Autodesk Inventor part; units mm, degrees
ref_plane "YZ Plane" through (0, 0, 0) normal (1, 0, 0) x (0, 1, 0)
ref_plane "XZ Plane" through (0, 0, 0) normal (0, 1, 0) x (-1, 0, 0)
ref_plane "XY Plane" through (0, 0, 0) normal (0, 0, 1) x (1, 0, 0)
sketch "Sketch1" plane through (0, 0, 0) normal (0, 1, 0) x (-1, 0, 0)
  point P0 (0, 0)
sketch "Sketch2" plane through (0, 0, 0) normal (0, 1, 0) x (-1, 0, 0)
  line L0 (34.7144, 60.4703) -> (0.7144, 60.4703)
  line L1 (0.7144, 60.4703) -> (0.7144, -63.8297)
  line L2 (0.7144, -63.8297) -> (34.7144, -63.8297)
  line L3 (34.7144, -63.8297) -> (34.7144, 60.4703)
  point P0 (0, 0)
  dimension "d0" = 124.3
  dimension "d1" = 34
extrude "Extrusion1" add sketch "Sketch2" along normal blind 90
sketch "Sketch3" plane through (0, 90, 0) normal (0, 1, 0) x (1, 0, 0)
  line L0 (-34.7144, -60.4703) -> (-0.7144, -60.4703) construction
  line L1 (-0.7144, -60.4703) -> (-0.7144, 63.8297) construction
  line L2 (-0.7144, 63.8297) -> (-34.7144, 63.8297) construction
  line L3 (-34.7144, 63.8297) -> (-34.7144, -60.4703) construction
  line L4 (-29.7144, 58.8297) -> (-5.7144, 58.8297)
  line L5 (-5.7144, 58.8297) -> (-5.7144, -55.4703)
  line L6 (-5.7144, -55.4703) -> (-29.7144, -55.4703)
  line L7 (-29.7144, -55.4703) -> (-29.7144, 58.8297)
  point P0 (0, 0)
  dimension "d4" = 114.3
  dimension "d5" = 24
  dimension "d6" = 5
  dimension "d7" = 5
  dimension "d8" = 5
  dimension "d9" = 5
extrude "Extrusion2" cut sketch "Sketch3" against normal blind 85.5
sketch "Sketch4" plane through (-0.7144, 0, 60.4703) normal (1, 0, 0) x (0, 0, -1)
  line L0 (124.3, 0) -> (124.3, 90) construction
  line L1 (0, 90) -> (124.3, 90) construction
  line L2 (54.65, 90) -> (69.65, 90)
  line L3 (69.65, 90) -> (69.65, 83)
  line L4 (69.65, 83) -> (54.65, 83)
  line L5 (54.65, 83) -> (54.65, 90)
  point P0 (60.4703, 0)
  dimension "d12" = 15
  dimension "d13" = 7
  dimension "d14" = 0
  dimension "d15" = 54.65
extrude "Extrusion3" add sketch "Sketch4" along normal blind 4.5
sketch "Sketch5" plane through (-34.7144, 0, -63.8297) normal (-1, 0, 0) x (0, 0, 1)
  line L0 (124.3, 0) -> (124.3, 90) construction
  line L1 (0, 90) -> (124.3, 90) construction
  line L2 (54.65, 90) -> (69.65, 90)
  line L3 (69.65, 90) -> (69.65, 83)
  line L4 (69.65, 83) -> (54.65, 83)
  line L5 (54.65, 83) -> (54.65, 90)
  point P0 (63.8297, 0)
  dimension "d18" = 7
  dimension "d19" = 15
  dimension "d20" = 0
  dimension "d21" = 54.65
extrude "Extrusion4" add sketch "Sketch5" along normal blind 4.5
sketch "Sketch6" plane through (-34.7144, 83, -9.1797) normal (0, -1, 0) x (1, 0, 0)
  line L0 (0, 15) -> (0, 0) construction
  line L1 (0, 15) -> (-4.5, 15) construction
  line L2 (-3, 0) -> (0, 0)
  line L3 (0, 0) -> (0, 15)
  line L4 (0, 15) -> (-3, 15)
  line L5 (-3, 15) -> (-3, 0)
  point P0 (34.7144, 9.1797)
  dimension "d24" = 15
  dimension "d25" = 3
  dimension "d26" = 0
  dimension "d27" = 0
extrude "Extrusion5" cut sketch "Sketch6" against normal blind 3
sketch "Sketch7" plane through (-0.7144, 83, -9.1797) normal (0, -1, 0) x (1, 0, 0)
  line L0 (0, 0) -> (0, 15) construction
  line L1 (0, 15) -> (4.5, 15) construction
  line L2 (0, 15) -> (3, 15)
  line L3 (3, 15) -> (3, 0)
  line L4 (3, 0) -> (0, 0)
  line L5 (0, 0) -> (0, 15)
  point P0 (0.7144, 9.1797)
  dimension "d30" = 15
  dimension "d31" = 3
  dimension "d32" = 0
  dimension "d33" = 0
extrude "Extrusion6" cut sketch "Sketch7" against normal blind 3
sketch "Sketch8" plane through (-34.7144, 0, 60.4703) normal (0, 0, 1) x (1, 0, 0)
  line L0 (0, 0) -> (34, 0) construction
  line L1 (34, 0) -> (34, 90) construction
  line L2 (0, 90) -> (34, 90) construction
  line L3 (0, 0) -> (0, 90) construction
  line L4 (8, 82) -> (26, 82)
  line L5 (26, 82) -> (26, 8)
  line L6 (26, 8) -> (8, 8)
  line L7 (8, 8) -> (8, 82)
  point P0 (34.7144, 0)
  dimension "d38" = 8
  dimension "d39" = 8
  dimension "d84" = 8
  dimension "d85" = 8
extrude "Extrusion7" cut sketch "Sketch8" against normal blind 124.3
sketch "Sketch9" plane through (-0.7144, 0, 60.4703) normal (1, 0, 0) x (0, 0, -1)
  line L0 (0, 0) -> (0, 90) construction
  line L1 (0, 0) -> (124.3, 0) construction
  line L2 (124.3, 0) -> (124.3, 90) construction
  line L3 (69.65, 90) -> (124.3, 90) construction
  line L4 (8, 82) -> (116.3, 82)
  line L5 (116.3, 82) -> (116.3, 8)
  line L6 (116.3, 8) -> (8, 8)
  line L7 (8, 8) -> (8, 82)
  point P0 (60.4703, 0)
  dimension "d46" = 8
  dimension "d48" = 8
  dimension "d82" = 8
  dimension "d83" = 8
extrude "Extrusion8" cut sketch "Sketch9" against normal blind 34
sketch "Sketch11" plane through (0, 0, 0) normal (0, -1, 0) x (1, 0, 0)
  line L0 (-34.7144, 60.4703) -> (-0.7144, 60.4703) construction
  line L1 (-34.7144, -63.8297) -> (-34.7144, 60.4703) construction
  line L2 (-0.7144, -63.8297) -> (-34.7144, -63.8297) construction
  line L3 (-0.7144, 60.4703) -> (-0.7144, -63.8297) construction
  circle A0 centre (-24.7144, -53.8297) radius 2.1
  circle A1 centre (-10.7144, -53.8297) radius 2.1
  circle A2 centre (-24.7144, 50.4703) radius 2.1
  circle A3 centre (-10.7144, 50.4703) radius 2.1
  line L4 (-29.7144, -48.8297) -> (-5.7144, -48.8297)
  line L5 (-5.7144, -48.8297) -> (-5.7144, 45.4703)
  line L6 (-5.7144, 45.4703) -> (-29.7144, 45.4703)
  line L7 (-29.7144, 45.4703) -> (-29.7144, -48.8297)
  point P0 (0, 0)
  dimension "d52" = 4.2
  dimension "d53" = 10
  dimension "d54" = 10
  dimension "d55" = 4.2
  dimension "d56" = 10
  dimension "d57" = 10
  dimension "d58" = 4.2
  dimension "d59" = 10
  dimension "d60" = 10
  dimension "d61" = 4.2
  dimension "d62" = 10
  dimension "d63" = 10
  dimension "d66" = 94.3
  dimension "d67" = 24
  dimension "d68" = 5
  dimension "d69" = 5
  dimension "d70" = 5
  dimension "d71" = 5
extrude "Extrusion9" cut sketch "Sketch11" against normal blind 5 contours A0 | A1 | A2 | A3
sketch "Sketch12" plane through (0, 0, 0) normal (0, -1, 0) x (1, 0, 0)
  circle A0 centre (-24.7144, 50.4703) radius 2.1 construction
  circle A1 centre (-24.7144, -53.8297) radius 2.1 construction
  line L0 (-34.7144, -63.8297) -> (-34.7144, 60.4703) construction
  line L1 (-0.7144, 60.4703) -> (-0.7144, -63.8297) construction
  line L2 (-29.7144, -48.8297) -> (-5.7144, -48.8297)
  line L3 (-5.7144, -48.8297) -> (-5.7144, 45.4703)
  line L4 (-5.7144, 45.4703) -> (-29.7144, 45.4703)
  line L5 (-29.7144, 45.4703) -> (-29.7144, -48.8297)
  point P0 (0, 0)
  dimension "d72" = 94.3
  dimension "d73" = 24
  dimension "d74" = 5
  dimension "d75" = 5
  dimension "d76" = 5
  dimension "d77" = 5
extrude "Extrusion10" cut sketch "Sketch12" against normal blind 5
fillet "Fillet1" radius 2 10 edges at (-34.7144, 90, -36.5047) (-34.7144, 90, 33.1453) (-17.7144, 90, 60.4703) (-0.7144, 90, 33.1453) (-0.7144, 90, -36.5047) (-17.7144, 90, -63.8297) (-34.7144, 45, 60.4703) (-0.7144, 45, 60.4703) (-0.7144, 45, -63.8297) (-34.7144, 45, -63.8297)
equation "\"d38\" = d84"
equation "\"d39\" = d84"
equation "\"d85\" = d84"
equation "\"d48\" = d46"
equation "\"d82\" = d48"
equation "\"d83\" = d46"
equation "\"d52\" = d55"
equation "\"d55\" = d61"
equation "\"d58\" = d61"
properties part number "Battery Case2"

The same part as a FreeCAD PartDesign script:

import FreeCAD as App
import Part
import Sketcher
from FreeCAD import Vector


def edges_at(feature, points):
    """Names of the edges that pass closest to the given points."""
    edges = feature.Shape.Edges
    near = lambda p: min(range(len(edges)), key=lambda i: edges[i].distToShape(Part.Vertex(*p))[0])
    return sorted({f"Edge{near(p) + 1}" for p in points})

doc = App.newDocument("Part")
body = doc.addObject("PartDesign::Body", "Body")

# Sketch on XZ plane
sketch1 = body.newObject("Sketcher::SketchObject", "Sketch")
sketch1.AttachmentSupport = (doc.getObject("XZ_Plane"), [""])
sketch1.MapMode = "FlatFace"
sketch1.addGeometry([
    Part.LineSegment(Vector(-35, -64, 0), Vector(-35, 60, 0)),
    Part.LineSegment(Vector(-35, 60, 0), Vector(-1, 60, 0)),
    Part.LineSegment(Vector(-1, 60, 0), Vector(-1, -64, 0)),
    Part.LineSegment(Vector(-1, -64, 0), Vector(-35, -64, 0)),
], False)
sketch1.addConstraint([
    Sketcher.Constraint("Coincident", 0, 2, 1, 1),
    Sketcher.Constraint("Coincident", 1, 2, 2, 1),
    Sketcher.Constraint("Coincident", 2, 2, 3, 1),
    Sketcher.Constraint("Coincident", 3, 2, 0, 1),
    Sketcher.Constraint("Vertical", 0),
    Sketcher.Constraint("Horizontal", 1),
    Sketcher.Constraint("Vertical", 2),
    Sketcher.Constraint("Horizontal", 3),
    Sketcher.Constraint("DistanceX", 1, 1, 1, 2, 34.0),
    Sketcher.Constraint("DistanceY", 0, 1, 0, 2, 124.3),
    Sketcher.Constraint("DistanceX", 0, 2, -1, 1, 34.7144),
    Sketcher.Constraint("DistanceY", -1, 1, 0, 2, 60.4703),
])
pad1 = body.newObject("PartDesign::Pad", "Pad")
pad1.Profile = sketch1
pad1.Length = 90
pad1.Reversed = True

# Sketch on XZ plane
sketch2 = body.newObject("Sketcher::SketchObject", "Sketch001")
sketch2.AttachmentSupport = (doc.getObject("XZ_Plane"), [""])
sketch2.MapMode = "FlatFace"
sketch2.AttachmentOffset = App.Placement(Vector(0, 0, -90), App.Rotation())
sketch2.addGeometry([
    Part.LineSegment(Vector(-6, -59, 0), Vector(-30, -59, 0)),
    Part.LineSegment(Vector(-30, -59, 0), Vector(-30, 55, 0)),
    Part.LineSegment(Vector(-30, 55, 0), Vector(-6, 55, 0)),
    Part.LineSegment(Vector(-6, 55, 0), Vector(-6, -59, 0)),
], False)
sketch2.addConstraint([
    Sketcher.Constraint("Coincident", 0, 2, 1, 1),
    Sketcher.Constraint("Coincident", 1, 2, 2, 1),
    Sketcher.Constraint("Coincident", 2, 2, 3, 1),
    Sketcher.Constraint("Coincident", 3, 2, 0, 1),
    Sketcher.Constraint("Horizontal", 0),
    Sketcher.Constraint("Vertical", 1),
    Sketcher.Constraint("Horizontal", 2),
    Sketcher.Constraint("Vertical", 3),
    Sketcher.Constraint("DistanceX", 0, 2, 0, 1, 24.0),
    Sketcher.Constraint("DistanceY", 1, 1, 1, 2, 114.3),
    Sketcher.Constraint("DistanceX", 0, 2, -1, 1, 29.7144),
    Sketcher.Constraint("DistanceY", 0, 2, -1, 1, 58.8297),
])
pocket1 = body.newObject("PartDesign::Pocket", "Pocket")
pocket1.Profile = sketch2
pocket1.Length = 85.5
pocket1.Reversed = True

# Sketch on YZ plane
sketch3 = body.newObject("Sketcher::SketchObject", "Sketch002")
sketch3.AttachmentSupport = (doc.getObject("YZ_Plane"), [""])
sketch3.MapMode = "FlatFace"
sketch3.AttachmentOffset = App.Placement(Vector(0, 0, -0.7144), App.Rotation())
sketch3.addGeometry([
    Part.LineSegment(Vector(90, -9, 0), Vector(90, 6, 0)),
    Part.LineSegment(Vector(90, 6, 0), Vector(83, 6, 0)),
    Part.LineSegment(Vector(83, 6, 0), Vector(83, -9, 0)),
    Part.LineSegment(Vector(83, -9, 0), Vector(90, -9, 0)),
], False)
sketch3.addConstraint([
    Sketcher.Constraint("Coincident", 0, 2, 1, 1),
    Sketcher.Constraint("Coincident", 1, 2, 2, 1),
    Sketcher.Constraint("Coincident", 2, 2, 3, 1),
    Sketcher.Constraint("Coincident", 3, 2, 0, 1),
    Sketcher.Constraint("Vertical", 0),
    Sketcher.Constraint("Horizontal", 1),
    Sketcher.Constraint("Vertical", 2),
    Sketcher.Constraint("Horizontal", 3),
    Sketcher.Constraint("DistanceX", 1, 2, 1, 1, 7.0),
    Sketcher.Constraint("DistanceY", 0, 1, 0, 2, 15.0),
    Sketcher.Constraint("DistanceX", -1, 1, 0, 2, 90.0),
    Sketcher.Constraint("DistanceY", -1, 1, 0, 2, 5.8203),
])
pad2 = body.newObject("PartDesign::Pad", "Pad001")
pad2.Profile = sketch3
pad2.Length = 4.5

# Sketch on YZ plane
sketch4 = body.newObject("Sketcher::SketchObject", "Sketch003")
sketch4.AttachmentSupport = (doc.getObject("YZ_Plane"), [""])
sketch4.MapMode = "FlatFace"
sketch4.AttachmentOffset = App.Placement(Vector(0, 0, -34.7144), App.Rotation())
sketch4.addGeometry([
    Part.LineSegment(Vector(90, 6, 0), Vector(90, -9, 0)),
    Part.LineSegment(Vector(90, -9, 0), Vector(83, -9, 0)),
    Part.LineSegment(Vector(83, -9, 0), Vector(83, 6, 0)),
    Part.LineSegment(Vector(83, 6, 0), Vector(90, 6, 0)),
], False)
sketch4.addConstraint([
    Sketcher.Constraint("Coincident", 0, 2, 1, 1),
    Sketcher.Constraint("Coincident", 1, 2, 2, 1),
    Sketcher.Constraint("Coincident", 2, 2, 3, 1),
    Sketcher.Constraint("Coincident", 3, 2, 0, 1),
    Sketcher.Constraint("Vertical", 0),
    Sketcher.Constraint("Horizontal", 1),
    Sketcher.Constraint("Vertical", 2),
    Sketcher.Constraint("Horizontal", 3),
    Sketcher.Constraint("DistanceX", 1, 2, 1, 1, 7.0),
    Sketcher.Constraint("DistanceY", 0, 2, 0, 1, 15.0),
    Sketcher.Constraint("DistanceX", -1, 1, 0, 2, 90.0),
    Sketcher.Constraint("DistanceY", 0, 2, -1, 1, 9.1797),
])
pad3 = body.newObject("PartDesign::Pad", "Pad002")
pad3.Profile = sketch4
pad3.Length = 4.5
pad3.Reversed = True

# Sketch on XZ plane
sketch5 = body.newObject("Sketcher::SketchObject", "Sketch004")
sketch5.AttachmentSupport = (doc.getObject("XZ_Plane"), [""])
sketch5.MapMode = "FlatFace"
sketch5.AttachmentOffset = App.Placement(Vector(0, 0, -83), App.Rotation())
sketch5.addGeometry([
    Part.LineSegment(Vector(-37.7, 5.8, 0), Vector(-37.7, -9.2, 0)),
    Part.LineSegment(Vector(-37.7, -9.2, 0), Vector(-34.7, -9.2, 0)),
    Part.LineSegment(Vector(-34.7, -9.2, 0), Vector(-34.7, 5.8, 0)),
    Part.LineSegment(Vector(-34.7, 5.8, 0), Vector(-37.7, 5.8, 0)),
], False)
sketch5.addConstraint([
    Sketcher.Constraint("Coincident", 0, 2, 1, 1),
    Sketcher.Constraint("Coincident", 1, 2, 2, 1),
    Sketcher.Constraint("Coincident", 2, 2, 3, 1),
    Sketcher.Constraint("Coincident", 3, 2, 0, 1),
    Sketcher.Constraint("Vertical", 0),
    Sketcher.Constraint("Horizontal", 1),
    Sketcher.Constraint("Vertical", 2),
    Sketcher.Constraint("Horizontal", 3),
    Sketcher.Constraint("DistanceX", 1, 1, 1, 2, 3.0),
    Sketcher.Constraint("DistanceY", 0, 2, 0, 1, 15.0),
    Sketcher.Constraint("DistanceX", 0, 2, -1, 1, 37.7144),
    Sketcher.Constraint("DistanceY", 0, 2, -1, 1, 9.1797),
])
pocket2 = body.newObject("PartDesign::Pocket", "Pocket001")
pocket2.Profile = sketch5
pocket2.Length = 3

# Sketch on XZ plane
sketch6 = body.newObject("Sketcher::SketchObject", "Sketch005")
sketch6.AttachmentSupport = (doc.getObject("XZ_Plane"), [""])
sketch6.MapMode = "FlatFace"
sketch6.AttachmentOffset = App.Placement(Vector(0, 0, -83), App.Rotation())
sketch6.addGeometry([
    Part.LineSegment(Vector(2.3, 5.8, 0), Vector(-0.7, 5.8, 0)),
    Part.LineSegment(Vector(-0.7, 5.8, 0), Vector(-0.7, -9.2, 0)),
    Part.LineSegment(Vector(-0.7, -9.2, 0), Vector(2.3, -9.2, 0)),
    Part.LineSegment(Vector(2.3, -9.2, 0), Vector(2.3, 5.8, 0)),
], False)
sketch6.addConstraint([
    Sketcher.Constraint("Coincident", 0, 2, 1, 1),
    Sketcher.Constraint("Coincident", 1, 2, 2, 1),
    Sketcher.Constraint("Coincident", 2, 2, 3, 1),
    Sketcher.Constraint("Coincident", 3, 2, 0, 1),
    Sketcher.Constraint("Horizontal", 0),
    Sketcher.Constraint("Vertical", 1),
    Sketcher.Constraint("Horizontal", 2),
    Sketcher.Constraint("Vertical", 3),
    Sketcher.Constraint("DistanceX", 0, 2, 0, 1, 3.0),
    Sketcher.Constraint("DistanceY", 1, 2, 1, 1, 15.0),
    Sketcher.Constraint("DistanceX", 0, 2, -1, 1, 0.7144),
    Sketcher.Constraint("DistanceY", -1, 1, 0, 2, 5.8203),
])
pocket3 = body.newObject("PartDesign::Pocket", "Pocket002")
pocket3.Profile = sketch6
pocket3.Length = 3

# Sketch on XY plane
sketch7 = body.newObject("Sketcher::SketchObject", "Sketch006")
sketch7.AttachmentSupport = (doc.getObject("XY_Plane"), [""])
sketch7.MapMode = "FlatFace"
sketch7.AttachmentOffset = App.Placement(Vector(0, 0, 60.4703), App.Rotation())
sketch7.addGeometry([
    Part.LineSegment(Vector(-9, 82, 0), Vector(-27, 82, 0)),
    Part.LineSegment(Vector(-27, 82, 0), Vector(-27, 8, 0)),
    Part.LineSegment(Vector(-27, 8, 0), Vector(-9, 8, 0)),
    Part.LineSegment(Vector(-9, 8, 0), Vector(-9, 82, 0)),
], False)
sketch7.addConstraint([
    Sketcher.Constraint("Coincident", 0, 2, 1, 1),
    Sketcher.Constraint("Coincident", 1, 2, 2, 1),
    Sketcher.Constraint("Coincident", 2, 2, 3, 1),
    Sketcher.Constraint("Coincident", 3, 2, 0, 1),
    Sketcher.Constraint("Horizontal", 0),
    Sketcher.Constraint("Vertical", 1),
    Sketcher.Constraint("Horizontal", 2),
    Sketcher.Constraint("Vertical", 3),
    Sketcher.Constraint("DistanceY", -1, 1, 1, 2, 8.0),
    Sketcher.Constraint("DistanceX", 0, 2, 0, 1, 18.0),
    Sketcher.Constraint("DistanceY", 1, 2, 1, 1, 74.0),
    Sketcher.Constraint("DistanceX", 0, 2, -1, 1, 26.7144),
])
pocket4 = body.newObject("PartDesign::Pocket", "Pocket003")
pocket4.Profile = sketch7
pocket4.Length = 124.3

# Sketch on YZ plane
sketch8 = body.newObject("Sketcher::SketchObject", "Sketch007")
sketch8.AttachmentSupport = (doc.getObject("YZ_Plane"), [""])
sketch8.MapMode = "FlatFace"
sketch8.AttachmentOffset = App.Placement(Vector(0, 0, -0.7144), App.Rotation())
sketch8.addGeometry([
    Part.LineSegment(Vector(82, -56, 0), Vector(82, 52, 0)),
    Part.LineSegment(Vector(82, 52, 0), Vector(8, 52, 0)),
    Part.LineSegment(Vector(8, 52, 0), Vector(8, -56, 0)),
    Part.LineSegment(Vector(8, -56, 0), Vector(82, -56, 0)),
], False)
sketch8.addConstraint([
    Sketcher.Constraint("Coincident", 0, 2, 1, 1),
    Sketcher.Constraint("Coincident", 1, 2, 2, 1),
    Sketcher.Constraint("Coincident", 2, 2, 3, 1),
    Sketcher.Constraint("Coincident", 3, 2, 0, 1),
    Sketcher.Constraint("Vertical", 0),
    Sketcher.Constraint("Horizontal", 1),
    Sketcher.Constraint("Vertical", 2),
    Sketcher.Constraint("Horizontal", 3),
    Sketcher.Constraint("DistanceX", -1, 1, 1, 2, 8.0),
    Sketcher.Constraint("DistanceX", 1, 2, 1, 1, 74.0),
    Sketcher.Constraint("DistanceY", 0, 1, 0, 2, 108.3),
    Sketcher.Constraint("DistanceY", -1, 1, 0, 2, 52.4703),
])
pocket5 = body.newObject("PartDesign::Pocket", "Pocket004")
pocket5.Profile = sketch8
pocket5.Length = 34

# Sketch on XZ plane
sketch9 = body.newObject("Sketcher::SketchObject", "Sketch008")
sketch9.AttachmentSupport = (doc.getObject("XZ_Plane"), [""])
sketch9.MapMode = "FlatFace"
sketch9.addGeometry([
    Part.Circle(Vector(-24.7, -53.8, 0), Vector(0, 0, 1), 2.1),
    Part.Circle(Vector(-10.7, -53.8, 0), Vector(0, 0, 1), 2.1),
    Part.Circle(Vector(-24.7, 50.5, 0), Vector(0, 0, 1), 2.1),
    Part.Circle(Vector(-10.7, 50.5, 0), Vector(0, 0, 1), 2.1),
], False)
sketch9.addConstraint([
    Sketcher.Constraint("Equal", 0, 1),
    Sketcher.Constraint("Equal", 1, 2),
    Sketcher.Constraint("Equal", 2, 3),
    Sketcher.Constraint("Horizontal", 0, 3, 1, 3),
    Sketcher.Constraint("Horizontal", 2, 3, 3, 3),
    Sketcher.Constraint("Vertical", 0, 3, 2, 3),
    Sketcher.Constraint("Vertical", 1, 3, 3, 3),
    Sketcher.Constraint("Diameter", 0, 4.2),
    Sketcher.Constraint("DistanceX", 0, 3, 1, 3, 14.0),
    Sketcher.Constraint("DistanceY", 0, 3, 2, 3, 104.3),
    Sketcher.Constraint("DistanceX", 0, 3, -1, 1, 24.7144),
    Sketcher.Constraint("DistanceY", 0, 3, -1, 1, 53.8297),
])
pocket6 = body.newObject("PartDesign::Pocket", "Pocket005")
pocket6.Profile = sketch9
pocket6.Length = 5

# Sketch on XZ plane
sketch10 = body.newObject("Sketcher::SketchObject", "Sketch009")
sketch10.AttachmentSupport = (doc.getObject("XZ_Plane"), [""])
sketch10.MapMode = "FlatFace"
sketch10.addGeometry([
    Part.LineSegment(Vector(-30, 45, 0), Vector(-30, -49, 0)),
    Part.LineSegment(Vector(-30, -49, 0), Vector(-6, -49, 0)),
    Part.LineSegment(Vector(-6, -49, 0), Vector(-6, 45, 0)),
    Part.LineSegment(Vector(-6, 45, 0), Vector(-30, 45, 0)),
], False)
sketch10.addConstraint([
    Sketcher.Constraint("Coincident", 0, 2, 1, 1),
    Sketcher.Constraint("Coincident", 1, 2, 2, 1),
    Sketcher.Constraint("Coincident", 2, 2, 3, 1),
    Sketcher.Constraint("Coincident", 3, 2, 0, 1),
    Sketcher.Constraint("Vertical", 0),
    Sketcher.Constraint("Horizontal", 1),
    Sketcher.Constraint("Vertical", 2),
    Sketcher.Constraint("Horizontal", 3),
    Sketcher.Constraint("DistanceX", 1, 1, 1, 2, 24.0),
    Sketcher.Constraint("DistanceY", 0, 2, 0, 1, 94.3),
    Sketcher.Constraint("DistanceX", 0, 2, -1, 1, 29.7144),
    Sketcher.Constraint("DistanceY", 0, 2, -1, 1, 48.8297),
])
pocket7 = body.newObject("PartDesign::Pocket", "Pocket006")
pocket7.Profile = sketch10
pocket7.Length = 5
doc.recompute()

fillet = body.newObject("PartDesign::Fillet", "Fillet")
fillet.Base = (pocket7, edges_at(pocket7, [
    (-34.714, 90, -36.505),
    (-34.714, 90, 33.145),
    (-17.714, 90, 60.47),
    (-0.714, 90, 33.145),
    (-0.714, 90, -36.505),
    (-17.714, 90, -63.83),
    (-34.714, 45, 60.47),
    (-0.714, 45, 60.47),
    (-0.714, 45, -63.83),
    (-34.714, 45, -63.83),
]))
fillet.Radius = 2

doc.recompute()
